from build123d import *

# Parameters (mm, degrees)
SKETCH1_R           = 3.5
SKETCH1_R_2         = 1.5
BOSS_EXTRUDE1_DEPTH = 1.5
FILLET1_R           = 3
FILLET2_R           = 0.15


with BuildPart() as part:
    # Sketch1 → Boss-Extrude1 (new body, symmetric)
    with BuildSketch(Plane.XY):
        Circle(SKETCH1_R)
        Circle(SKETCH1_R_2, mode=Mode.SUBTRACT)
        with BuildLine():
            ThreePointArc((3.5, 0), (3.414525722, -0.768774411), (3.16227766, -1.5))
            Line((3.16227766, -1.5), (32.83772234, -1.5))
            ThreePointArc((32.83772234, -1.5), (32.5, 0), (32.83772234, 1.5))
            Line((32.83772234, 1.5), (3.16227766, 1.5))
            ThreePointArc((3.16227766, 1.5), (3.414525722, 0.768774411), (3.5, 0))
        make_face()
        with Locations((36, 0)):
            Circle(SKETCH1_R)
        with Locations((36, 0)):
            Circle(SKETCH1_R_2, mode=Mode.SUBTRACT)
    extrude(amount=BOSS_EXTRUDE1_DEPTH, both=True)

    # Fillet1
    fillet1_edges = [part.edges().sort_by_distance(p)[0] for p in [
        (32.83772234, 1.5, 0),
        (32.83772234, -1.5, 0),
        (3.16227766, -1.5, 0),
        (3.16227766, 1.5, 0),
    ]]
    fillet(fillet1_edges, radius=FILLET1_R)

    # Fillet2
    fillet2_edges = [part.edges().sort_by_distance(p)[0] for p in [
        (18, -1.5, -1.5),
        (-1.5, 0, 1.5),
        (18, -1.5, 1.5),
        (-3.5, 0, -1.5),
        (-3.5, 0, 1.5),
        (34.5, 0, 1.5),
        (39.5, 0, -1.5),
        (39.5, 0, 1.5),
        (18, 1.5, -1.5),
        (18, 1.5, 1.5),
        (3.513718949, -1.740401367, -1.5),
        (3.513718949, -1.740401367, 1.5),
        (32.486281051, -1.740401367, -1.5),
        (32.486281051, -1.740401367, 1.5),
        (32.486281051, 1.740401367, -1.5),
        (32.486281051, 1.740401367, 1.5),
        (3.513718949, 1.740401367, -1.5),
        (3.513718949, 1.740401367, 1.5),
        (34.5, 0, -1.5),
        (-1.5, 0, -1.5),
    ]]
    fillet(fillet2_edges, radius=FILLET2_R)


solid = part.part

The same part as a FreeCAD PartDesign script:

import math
import FreeCAD as App
import Part
import Sketcher
Q = App.Units.Quantity


def edges_at(feature, points):
    """Names of the edges that pass closest to the given points."""
    edges = feature.Shape.Edges
    near = lambda p: min(range(len(edges)), key=lambda i: edges[i].distToShape(Part.Vertex(*p))[0])
    return sorted({f"Edge{near(p) + 1}" for p in points})

doc = App.newDocument("Part")
body = doc.addObject("PartDesign::Body", "Body")

# Sketch on XY plane
sketch1 = body.newObject("Sketcher::SketchObject", "Sketch")
sketch1.AttachmentSupport = (doc.getObject("XY_Plane"), [""])
sketch1.MapMode = "FlatFace"
sketch1.addGeometry([
    Part.ArcOfCircle(Part.Circle(App.Vector(0, 0, 0), App.Vector(0, 0, 1), 3.5), math.radians(25), math.radians(335)),  # 0
    Part.LineSegment(App.Vector(3.2, -1.5, 0), App.Vector(32.8, -1.5, 0)),  # 1
    Part.ArcOfCircle(Part.Circle(App.Vector(36, 0, 0), App.Vector(0, 0, 1), 3.5), math.radians(-155), math.radians(155)),  # 2
    Part.LineSegment(App.Vector(32.8, 1.5, 0), App.Vector(3.2, 1.5, 0)),  # 3
    Part.Circle(App.Vector(0, 0, 0), App.Vector(0, 0, 1), 1.5),  # 4
    Part.Circle(App.Vector(36, 0, 0), App.Vector(0, 0, 1), 1.5),  # 5
], False)
sketch1.addConstraint([
    Sketcher.Constraint("Coincident", 0, 2, 1, 1),
    Sketcher.Constraint("Coincident", 1, 2, 2, 1),
    Sketcher.Constraint("Coincident", 2, 2, 3, 1),
    Sketcher.Constraint("Coincident", 3, 2, 0, 1),
    Sketcher.Constraint("Horizontal", 1),
    Sketcher.Constraint("Horizontal", 3),
    Sketcher.Constraint("Coincident", 0, 3, -1, 1),
    Sketcher.Constraint("Coincident", 4, 3, -1, 1),
    Sketcher.Constraint("Coincident", 5, 3, 2, 3),
    Sketcher.Constraint("Equal", 0, 2),
    Sketcher.Constraint("Equal", 4, 5),
    Sketcher.Constraint("Symmetric", 1, 2, 2, 2, -1),
    Sketcher.Constraint("Diameter", 4, Q("3 mm")),
    Sketcher.Constraint("Radius", 0, Q("3.5 mm")),
    Sketcher.Constraint("DistanceX", -1, 1, 2, 3, Q("36 mm")),
    Sketcher.Constraint("DistanceY", 1, 2, 2, 2, Q("3 mm")),
])
pad1 = body.newObject("PartDesign::Pad", "Pad")
pad1.Profile = sketch1
pad1.Length = 3
pad1.Midplane = True
doc.recompute()

fillet = body.newObject("PartDesign::Fillet", "Fillet")
fillet.Base = (pad1, edges_at(pad1, [
    (32.838, 1.5, 0),
    (32.838, -1.5, 0),
    (3.162, -1.5, 0),
    (3.162, 1.5, 0),
]))
fillet.Radius = 3
doc.recompute()

fillet2 = body.newObject("PartDesign::Fillet", "Fillet001")
fillet2.Base = (fillet, edges_at(fillet, [
    (18, -1.5, -1.5),
    (-1.5, 0, 1.5),
    (18, -1.5, 1.5),
    (-3.5, 0, -1.5),
    (-3.5, 0, 1.5),
    (34.5, 0, 1.5),
    (39.5, 0, -1.5),
    (39.5, 0, 1.5),
    (18, 1.5, -1.5),
    (18, 1.5, 1.5),
    (3.514, -1.74, -1.5),
    (3.514, -1.74, 1.5),
    (32.486, -1.74, -1.5),
    (32.486, -1.74, 1.5),
    (32.486, 1.74, -1.5),
    (32.486, 1.74, 1.5),
    (3.514, 1.74, -1.5),
    (3.514, 1.74, 1.5),
    (34.5, 0, -1.5),
    (-1.5, 0, -1.5),
]))
fillet2.Radius = 0.15

doc.recompute()
